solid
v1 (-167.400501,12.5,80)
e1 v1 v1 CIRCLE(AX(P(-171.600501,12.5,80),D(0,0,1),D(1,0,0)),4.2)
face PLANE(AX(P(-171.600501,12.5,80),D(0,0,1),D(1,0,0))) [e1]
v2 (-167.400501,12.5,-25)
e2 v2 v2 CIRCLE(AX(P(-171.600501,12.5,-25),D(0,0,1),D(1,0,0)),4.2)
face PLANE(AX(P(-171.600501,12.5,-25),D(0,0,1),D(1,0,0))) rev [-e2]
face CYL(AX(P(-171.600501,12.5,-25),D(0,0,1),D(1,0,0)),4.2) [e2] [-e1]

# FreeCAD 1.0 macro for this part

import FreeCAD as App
import Part
import Sketcher

V = App.Vector
Q = App.Units.Quantity

doc = App.newDocument("Part")
body = doc.addObject("PartDesign::Body", "Body")

# Sketch on XY plane
sketch1 = body.newObject("Sketcher::SketchObject", "Sketch")
sketch1.AttachmentSupport = (doc.getObject("XY_Plane"), [""])
sketch1.MapMode = "FlatFace"
sketch1.addGeometry(Part.Circle(V(-171.6, 12.5, 0), V(0, 0, 1), 4.2), False)
sketch1.addConstraint(Sketcher.Constraint("Diameter", 0, Q("8.4 mm")))
sketch1.addConstraint(Sketcher.Constraint("DistanceY", -1, 1, 0, 3, Q("12.5 mm")))
sketch1.addConstraint(Sketcher.Constraint("DistanceX", 0, 3, -1, 1, Q("171.600501 mm")))
pad1 = body.newObject("PartDesign::Pad", "Pad")
pad1.Profile = sketch1
pad1.Type = "TwoLengths"
pad1.Length = 80
pad1.Length2 = 25

doc.recompute()
